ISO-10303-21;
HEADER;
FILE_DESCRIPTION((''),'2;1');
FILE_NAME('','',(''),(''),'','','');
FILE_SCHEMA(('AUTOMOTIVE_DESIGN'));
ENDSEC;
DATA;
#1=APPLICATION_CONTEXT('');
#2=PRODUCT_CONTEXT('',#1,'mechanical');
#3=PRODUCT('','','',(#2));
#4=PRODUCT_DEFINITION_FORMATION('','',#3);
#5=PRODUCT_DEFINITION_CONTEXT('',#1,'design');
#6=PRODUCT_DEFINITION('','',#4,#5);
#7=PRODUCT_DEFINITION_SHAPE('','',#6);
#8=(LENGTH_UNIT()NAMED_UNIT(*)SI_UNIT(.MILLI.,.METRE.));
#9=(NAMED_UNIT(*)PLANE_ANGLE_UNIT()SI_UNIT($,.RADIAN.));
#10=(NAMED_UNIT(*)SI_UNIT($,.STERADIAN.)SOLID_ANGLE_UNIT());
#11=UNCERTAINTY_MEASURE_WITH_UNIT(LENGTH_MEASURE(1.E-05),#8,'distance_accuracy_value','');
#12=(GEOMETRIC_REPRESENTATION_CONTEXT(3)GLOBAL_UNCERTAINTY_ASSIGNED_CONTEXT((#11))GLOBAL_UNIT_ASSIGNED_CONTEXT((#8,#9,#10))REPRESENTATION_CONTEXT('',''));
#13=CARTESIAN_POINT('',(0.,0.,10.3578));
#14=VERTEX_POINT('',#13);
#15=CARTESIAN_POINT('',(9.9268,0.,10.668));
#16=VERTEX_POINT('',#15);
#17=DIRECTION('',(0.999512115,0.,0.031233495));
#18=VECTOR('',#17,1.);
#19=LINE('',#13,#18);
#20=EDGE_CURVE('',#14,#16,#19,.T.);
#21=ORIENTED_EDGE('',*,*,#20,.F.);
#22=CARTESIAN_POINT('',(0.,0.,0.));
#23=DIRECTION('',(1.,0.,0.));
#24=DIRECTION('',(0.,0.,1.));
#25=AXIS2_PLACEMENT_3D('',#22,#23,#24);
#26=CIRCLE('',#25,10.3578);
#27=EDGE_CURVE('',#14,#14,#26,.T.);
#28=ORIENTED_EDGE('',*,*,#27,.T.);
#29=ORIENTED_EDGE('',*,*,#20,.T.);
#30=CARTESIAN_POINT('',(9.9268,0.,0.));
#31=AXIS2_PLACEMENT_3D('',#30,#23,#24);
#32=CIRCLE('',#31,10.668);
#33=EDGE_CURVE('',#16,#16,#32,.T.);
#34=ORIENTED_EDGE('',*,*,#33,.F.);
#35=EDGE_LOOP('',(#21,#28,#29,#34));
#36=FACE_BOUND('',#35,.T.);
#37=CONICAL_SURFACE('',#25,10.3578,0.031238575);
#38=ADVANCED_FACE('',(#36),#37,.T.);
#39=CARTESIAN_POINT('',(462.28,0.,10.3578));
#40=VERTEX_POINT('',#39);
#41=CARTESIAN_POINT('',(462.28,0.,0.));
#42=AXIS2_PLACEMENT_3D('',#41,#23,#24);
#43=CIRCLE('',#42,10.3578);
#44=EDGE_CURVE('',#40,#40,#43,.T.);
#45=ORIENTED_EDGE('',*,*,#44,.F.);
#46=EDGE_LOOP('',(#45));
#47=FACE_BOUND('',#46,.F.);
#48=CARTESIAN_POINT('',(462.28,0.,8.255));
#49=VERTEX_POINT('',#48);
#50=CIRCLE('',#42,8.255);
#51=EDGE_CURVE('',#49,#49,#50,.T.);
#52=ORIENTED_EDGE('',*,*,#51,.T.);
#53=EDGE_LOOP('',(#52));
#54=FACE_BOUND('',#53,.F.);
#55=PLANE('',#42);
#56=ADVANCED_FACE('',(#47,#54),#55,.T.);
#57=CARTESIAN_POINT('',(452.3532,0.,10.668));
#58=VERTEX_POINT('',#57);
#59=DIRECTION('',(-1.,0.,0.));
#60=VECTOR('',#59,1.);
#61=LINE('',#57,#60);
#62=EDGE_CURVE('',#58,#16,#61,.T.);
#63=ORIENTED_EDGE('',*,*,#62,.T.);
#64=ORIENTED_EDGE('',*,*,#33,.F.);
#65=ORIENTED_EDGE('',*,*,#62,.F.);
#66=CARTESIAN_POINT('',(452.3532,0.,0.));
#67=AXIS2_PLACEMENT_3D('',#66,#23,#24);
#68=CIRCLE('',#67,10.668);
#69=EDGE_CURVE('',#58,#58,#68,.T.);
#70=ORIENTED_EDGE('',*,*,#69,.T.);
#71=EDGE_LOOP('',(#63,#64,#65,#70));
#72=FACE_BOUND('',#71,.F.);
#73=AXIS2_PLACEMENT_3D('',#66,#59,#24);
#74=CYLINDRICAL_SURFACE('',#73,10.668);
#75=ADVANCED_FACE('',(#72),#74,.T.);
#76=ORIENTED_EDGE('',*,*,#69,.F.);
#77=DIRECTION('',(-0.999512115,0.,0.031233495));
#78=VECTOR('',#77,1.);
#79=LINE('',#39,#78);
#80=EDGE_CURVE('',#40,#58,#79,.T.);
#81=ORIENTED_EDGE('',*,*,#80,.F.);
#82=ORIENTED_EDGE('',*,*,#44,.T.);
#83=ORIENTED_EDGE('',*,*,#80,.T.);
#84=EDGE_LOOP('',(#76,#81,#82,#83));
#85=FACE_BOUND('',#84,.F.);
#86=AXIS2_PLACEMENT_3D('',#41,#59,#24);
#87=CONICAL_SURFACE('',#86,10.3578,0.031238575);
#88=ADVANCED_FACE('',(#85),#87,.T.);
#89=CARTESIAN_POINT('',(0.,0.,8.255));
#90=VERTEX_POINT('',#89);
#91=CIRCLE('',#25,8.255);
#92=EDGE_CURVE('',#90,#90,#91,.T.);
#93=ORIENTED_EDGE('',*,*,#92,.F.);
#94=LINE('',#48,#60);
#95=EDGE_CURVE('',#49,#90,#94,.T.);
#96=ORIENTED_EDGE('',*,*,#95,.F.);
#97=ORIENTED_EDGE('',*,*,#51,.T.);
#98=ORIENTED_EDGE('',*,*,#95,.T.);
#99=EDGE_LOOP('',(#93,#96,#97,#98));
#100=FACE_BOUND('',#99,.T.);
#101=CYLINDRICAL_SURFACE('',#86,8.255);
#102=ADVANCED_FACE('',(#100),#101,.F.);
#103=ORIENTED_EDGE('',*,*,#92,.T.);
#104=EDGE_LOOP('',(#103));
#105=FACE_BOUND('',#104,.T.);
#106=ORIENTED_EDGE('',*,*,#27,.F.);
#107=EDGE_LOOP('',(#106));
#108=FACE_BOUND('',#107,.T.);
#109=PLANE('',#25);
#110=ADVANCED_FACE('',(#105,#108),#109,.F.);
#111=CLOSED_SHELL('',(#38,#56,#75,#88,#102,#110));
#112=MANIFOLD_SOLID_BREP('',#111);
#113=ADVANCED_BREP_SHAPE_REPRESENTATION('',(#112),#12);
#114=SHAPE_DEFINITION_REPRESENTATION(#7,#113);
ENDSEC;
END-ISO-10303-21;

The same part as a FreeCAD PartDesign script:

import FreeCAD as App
import Part
import Sketcher
from FreeCAD import Vector
Q = App.Units.Quantity


def add_polygon(sketch, points):
    """Adds a closed chain of lines whose ends are joined by coincident constraints."""
    first, n = sketch.GeometryCount, len(points)
    for a, b in zip(points, points[1:] + points[:1]):
        sketch.addGeometry(Part.LineSegment(App.Vector(*a, 0), App.Vector(*b, 0)), False)
    for i in range(n):
        sketch.addConstraint(Sketcher.Constraint("Coincident", first + i, 2, first + (i + 1) % n, 1))

doc = App.newDocument("Part")
body = doc.addObject("PartDesign::Body", "Body")

sketch1 = body.newObject("Sketcher::SketchObject", "Sketch")
sketch1.AttachmentSupport = (doc.getObject("XZ_Plane"), [""])
sketch1.MapMode = "FlatFace"
add_polygon(sketch1, [(462.28, 10.3578), (462.28, 8.255), (0, 8.255), (0, 10.3578), (9.9268, 10.668), (452.3532, 10.668)])
sketch1.addConstraint(Sketcher.Constraint("Vertical", 0))
sketch1.addConstraint(Sketcher.Constraint("Horizontal", 1))
sketch1.addConstraint(Sketcher.Constraint("Vertical", 2))
sketch1.addConstraint(Sketcher.Constraint("Horizontal", 4))
sketch1.addConstraint(Sketcher.Constraint("PointOnObject", 1, 2, -2))
sketch1.addConstraint(Sketcher.Constraint("Horizontal", 2, 2, 5, 2))
sketch1.addConstraint(Sketcher.Constraint("Equal", 3, 5))
sketch1.addConstraint(Sketcher.Constraint("DistanceX", 1, 2, 1, 1, Q("18.2 in")))
sketch1.addConstraint(Sketcher.Constraint("Angle", 3, Q("1.7898 deg")))
sketch1.addConstraint(Sketcher.Constraint("DistanceY", -1, 1, 3, 2, Q("0.42 in")))
sketch1.addConstraint(Sketcher.Constraint("Distance", 3, Q("0.391 in")))
sketch1.addConstraint(Sketcher.Constraint("DistanceY", -1, 1, 0, 2, Q("0.325 in")))
revolution = body.newObject("PartDesign::Revolution", "Revolution")
revolution.Profile = sketch1
revolution.ReferenceAxis = (sketch1, ["H_Axis"])
revolution.Angle = 360

doc.recompute()
